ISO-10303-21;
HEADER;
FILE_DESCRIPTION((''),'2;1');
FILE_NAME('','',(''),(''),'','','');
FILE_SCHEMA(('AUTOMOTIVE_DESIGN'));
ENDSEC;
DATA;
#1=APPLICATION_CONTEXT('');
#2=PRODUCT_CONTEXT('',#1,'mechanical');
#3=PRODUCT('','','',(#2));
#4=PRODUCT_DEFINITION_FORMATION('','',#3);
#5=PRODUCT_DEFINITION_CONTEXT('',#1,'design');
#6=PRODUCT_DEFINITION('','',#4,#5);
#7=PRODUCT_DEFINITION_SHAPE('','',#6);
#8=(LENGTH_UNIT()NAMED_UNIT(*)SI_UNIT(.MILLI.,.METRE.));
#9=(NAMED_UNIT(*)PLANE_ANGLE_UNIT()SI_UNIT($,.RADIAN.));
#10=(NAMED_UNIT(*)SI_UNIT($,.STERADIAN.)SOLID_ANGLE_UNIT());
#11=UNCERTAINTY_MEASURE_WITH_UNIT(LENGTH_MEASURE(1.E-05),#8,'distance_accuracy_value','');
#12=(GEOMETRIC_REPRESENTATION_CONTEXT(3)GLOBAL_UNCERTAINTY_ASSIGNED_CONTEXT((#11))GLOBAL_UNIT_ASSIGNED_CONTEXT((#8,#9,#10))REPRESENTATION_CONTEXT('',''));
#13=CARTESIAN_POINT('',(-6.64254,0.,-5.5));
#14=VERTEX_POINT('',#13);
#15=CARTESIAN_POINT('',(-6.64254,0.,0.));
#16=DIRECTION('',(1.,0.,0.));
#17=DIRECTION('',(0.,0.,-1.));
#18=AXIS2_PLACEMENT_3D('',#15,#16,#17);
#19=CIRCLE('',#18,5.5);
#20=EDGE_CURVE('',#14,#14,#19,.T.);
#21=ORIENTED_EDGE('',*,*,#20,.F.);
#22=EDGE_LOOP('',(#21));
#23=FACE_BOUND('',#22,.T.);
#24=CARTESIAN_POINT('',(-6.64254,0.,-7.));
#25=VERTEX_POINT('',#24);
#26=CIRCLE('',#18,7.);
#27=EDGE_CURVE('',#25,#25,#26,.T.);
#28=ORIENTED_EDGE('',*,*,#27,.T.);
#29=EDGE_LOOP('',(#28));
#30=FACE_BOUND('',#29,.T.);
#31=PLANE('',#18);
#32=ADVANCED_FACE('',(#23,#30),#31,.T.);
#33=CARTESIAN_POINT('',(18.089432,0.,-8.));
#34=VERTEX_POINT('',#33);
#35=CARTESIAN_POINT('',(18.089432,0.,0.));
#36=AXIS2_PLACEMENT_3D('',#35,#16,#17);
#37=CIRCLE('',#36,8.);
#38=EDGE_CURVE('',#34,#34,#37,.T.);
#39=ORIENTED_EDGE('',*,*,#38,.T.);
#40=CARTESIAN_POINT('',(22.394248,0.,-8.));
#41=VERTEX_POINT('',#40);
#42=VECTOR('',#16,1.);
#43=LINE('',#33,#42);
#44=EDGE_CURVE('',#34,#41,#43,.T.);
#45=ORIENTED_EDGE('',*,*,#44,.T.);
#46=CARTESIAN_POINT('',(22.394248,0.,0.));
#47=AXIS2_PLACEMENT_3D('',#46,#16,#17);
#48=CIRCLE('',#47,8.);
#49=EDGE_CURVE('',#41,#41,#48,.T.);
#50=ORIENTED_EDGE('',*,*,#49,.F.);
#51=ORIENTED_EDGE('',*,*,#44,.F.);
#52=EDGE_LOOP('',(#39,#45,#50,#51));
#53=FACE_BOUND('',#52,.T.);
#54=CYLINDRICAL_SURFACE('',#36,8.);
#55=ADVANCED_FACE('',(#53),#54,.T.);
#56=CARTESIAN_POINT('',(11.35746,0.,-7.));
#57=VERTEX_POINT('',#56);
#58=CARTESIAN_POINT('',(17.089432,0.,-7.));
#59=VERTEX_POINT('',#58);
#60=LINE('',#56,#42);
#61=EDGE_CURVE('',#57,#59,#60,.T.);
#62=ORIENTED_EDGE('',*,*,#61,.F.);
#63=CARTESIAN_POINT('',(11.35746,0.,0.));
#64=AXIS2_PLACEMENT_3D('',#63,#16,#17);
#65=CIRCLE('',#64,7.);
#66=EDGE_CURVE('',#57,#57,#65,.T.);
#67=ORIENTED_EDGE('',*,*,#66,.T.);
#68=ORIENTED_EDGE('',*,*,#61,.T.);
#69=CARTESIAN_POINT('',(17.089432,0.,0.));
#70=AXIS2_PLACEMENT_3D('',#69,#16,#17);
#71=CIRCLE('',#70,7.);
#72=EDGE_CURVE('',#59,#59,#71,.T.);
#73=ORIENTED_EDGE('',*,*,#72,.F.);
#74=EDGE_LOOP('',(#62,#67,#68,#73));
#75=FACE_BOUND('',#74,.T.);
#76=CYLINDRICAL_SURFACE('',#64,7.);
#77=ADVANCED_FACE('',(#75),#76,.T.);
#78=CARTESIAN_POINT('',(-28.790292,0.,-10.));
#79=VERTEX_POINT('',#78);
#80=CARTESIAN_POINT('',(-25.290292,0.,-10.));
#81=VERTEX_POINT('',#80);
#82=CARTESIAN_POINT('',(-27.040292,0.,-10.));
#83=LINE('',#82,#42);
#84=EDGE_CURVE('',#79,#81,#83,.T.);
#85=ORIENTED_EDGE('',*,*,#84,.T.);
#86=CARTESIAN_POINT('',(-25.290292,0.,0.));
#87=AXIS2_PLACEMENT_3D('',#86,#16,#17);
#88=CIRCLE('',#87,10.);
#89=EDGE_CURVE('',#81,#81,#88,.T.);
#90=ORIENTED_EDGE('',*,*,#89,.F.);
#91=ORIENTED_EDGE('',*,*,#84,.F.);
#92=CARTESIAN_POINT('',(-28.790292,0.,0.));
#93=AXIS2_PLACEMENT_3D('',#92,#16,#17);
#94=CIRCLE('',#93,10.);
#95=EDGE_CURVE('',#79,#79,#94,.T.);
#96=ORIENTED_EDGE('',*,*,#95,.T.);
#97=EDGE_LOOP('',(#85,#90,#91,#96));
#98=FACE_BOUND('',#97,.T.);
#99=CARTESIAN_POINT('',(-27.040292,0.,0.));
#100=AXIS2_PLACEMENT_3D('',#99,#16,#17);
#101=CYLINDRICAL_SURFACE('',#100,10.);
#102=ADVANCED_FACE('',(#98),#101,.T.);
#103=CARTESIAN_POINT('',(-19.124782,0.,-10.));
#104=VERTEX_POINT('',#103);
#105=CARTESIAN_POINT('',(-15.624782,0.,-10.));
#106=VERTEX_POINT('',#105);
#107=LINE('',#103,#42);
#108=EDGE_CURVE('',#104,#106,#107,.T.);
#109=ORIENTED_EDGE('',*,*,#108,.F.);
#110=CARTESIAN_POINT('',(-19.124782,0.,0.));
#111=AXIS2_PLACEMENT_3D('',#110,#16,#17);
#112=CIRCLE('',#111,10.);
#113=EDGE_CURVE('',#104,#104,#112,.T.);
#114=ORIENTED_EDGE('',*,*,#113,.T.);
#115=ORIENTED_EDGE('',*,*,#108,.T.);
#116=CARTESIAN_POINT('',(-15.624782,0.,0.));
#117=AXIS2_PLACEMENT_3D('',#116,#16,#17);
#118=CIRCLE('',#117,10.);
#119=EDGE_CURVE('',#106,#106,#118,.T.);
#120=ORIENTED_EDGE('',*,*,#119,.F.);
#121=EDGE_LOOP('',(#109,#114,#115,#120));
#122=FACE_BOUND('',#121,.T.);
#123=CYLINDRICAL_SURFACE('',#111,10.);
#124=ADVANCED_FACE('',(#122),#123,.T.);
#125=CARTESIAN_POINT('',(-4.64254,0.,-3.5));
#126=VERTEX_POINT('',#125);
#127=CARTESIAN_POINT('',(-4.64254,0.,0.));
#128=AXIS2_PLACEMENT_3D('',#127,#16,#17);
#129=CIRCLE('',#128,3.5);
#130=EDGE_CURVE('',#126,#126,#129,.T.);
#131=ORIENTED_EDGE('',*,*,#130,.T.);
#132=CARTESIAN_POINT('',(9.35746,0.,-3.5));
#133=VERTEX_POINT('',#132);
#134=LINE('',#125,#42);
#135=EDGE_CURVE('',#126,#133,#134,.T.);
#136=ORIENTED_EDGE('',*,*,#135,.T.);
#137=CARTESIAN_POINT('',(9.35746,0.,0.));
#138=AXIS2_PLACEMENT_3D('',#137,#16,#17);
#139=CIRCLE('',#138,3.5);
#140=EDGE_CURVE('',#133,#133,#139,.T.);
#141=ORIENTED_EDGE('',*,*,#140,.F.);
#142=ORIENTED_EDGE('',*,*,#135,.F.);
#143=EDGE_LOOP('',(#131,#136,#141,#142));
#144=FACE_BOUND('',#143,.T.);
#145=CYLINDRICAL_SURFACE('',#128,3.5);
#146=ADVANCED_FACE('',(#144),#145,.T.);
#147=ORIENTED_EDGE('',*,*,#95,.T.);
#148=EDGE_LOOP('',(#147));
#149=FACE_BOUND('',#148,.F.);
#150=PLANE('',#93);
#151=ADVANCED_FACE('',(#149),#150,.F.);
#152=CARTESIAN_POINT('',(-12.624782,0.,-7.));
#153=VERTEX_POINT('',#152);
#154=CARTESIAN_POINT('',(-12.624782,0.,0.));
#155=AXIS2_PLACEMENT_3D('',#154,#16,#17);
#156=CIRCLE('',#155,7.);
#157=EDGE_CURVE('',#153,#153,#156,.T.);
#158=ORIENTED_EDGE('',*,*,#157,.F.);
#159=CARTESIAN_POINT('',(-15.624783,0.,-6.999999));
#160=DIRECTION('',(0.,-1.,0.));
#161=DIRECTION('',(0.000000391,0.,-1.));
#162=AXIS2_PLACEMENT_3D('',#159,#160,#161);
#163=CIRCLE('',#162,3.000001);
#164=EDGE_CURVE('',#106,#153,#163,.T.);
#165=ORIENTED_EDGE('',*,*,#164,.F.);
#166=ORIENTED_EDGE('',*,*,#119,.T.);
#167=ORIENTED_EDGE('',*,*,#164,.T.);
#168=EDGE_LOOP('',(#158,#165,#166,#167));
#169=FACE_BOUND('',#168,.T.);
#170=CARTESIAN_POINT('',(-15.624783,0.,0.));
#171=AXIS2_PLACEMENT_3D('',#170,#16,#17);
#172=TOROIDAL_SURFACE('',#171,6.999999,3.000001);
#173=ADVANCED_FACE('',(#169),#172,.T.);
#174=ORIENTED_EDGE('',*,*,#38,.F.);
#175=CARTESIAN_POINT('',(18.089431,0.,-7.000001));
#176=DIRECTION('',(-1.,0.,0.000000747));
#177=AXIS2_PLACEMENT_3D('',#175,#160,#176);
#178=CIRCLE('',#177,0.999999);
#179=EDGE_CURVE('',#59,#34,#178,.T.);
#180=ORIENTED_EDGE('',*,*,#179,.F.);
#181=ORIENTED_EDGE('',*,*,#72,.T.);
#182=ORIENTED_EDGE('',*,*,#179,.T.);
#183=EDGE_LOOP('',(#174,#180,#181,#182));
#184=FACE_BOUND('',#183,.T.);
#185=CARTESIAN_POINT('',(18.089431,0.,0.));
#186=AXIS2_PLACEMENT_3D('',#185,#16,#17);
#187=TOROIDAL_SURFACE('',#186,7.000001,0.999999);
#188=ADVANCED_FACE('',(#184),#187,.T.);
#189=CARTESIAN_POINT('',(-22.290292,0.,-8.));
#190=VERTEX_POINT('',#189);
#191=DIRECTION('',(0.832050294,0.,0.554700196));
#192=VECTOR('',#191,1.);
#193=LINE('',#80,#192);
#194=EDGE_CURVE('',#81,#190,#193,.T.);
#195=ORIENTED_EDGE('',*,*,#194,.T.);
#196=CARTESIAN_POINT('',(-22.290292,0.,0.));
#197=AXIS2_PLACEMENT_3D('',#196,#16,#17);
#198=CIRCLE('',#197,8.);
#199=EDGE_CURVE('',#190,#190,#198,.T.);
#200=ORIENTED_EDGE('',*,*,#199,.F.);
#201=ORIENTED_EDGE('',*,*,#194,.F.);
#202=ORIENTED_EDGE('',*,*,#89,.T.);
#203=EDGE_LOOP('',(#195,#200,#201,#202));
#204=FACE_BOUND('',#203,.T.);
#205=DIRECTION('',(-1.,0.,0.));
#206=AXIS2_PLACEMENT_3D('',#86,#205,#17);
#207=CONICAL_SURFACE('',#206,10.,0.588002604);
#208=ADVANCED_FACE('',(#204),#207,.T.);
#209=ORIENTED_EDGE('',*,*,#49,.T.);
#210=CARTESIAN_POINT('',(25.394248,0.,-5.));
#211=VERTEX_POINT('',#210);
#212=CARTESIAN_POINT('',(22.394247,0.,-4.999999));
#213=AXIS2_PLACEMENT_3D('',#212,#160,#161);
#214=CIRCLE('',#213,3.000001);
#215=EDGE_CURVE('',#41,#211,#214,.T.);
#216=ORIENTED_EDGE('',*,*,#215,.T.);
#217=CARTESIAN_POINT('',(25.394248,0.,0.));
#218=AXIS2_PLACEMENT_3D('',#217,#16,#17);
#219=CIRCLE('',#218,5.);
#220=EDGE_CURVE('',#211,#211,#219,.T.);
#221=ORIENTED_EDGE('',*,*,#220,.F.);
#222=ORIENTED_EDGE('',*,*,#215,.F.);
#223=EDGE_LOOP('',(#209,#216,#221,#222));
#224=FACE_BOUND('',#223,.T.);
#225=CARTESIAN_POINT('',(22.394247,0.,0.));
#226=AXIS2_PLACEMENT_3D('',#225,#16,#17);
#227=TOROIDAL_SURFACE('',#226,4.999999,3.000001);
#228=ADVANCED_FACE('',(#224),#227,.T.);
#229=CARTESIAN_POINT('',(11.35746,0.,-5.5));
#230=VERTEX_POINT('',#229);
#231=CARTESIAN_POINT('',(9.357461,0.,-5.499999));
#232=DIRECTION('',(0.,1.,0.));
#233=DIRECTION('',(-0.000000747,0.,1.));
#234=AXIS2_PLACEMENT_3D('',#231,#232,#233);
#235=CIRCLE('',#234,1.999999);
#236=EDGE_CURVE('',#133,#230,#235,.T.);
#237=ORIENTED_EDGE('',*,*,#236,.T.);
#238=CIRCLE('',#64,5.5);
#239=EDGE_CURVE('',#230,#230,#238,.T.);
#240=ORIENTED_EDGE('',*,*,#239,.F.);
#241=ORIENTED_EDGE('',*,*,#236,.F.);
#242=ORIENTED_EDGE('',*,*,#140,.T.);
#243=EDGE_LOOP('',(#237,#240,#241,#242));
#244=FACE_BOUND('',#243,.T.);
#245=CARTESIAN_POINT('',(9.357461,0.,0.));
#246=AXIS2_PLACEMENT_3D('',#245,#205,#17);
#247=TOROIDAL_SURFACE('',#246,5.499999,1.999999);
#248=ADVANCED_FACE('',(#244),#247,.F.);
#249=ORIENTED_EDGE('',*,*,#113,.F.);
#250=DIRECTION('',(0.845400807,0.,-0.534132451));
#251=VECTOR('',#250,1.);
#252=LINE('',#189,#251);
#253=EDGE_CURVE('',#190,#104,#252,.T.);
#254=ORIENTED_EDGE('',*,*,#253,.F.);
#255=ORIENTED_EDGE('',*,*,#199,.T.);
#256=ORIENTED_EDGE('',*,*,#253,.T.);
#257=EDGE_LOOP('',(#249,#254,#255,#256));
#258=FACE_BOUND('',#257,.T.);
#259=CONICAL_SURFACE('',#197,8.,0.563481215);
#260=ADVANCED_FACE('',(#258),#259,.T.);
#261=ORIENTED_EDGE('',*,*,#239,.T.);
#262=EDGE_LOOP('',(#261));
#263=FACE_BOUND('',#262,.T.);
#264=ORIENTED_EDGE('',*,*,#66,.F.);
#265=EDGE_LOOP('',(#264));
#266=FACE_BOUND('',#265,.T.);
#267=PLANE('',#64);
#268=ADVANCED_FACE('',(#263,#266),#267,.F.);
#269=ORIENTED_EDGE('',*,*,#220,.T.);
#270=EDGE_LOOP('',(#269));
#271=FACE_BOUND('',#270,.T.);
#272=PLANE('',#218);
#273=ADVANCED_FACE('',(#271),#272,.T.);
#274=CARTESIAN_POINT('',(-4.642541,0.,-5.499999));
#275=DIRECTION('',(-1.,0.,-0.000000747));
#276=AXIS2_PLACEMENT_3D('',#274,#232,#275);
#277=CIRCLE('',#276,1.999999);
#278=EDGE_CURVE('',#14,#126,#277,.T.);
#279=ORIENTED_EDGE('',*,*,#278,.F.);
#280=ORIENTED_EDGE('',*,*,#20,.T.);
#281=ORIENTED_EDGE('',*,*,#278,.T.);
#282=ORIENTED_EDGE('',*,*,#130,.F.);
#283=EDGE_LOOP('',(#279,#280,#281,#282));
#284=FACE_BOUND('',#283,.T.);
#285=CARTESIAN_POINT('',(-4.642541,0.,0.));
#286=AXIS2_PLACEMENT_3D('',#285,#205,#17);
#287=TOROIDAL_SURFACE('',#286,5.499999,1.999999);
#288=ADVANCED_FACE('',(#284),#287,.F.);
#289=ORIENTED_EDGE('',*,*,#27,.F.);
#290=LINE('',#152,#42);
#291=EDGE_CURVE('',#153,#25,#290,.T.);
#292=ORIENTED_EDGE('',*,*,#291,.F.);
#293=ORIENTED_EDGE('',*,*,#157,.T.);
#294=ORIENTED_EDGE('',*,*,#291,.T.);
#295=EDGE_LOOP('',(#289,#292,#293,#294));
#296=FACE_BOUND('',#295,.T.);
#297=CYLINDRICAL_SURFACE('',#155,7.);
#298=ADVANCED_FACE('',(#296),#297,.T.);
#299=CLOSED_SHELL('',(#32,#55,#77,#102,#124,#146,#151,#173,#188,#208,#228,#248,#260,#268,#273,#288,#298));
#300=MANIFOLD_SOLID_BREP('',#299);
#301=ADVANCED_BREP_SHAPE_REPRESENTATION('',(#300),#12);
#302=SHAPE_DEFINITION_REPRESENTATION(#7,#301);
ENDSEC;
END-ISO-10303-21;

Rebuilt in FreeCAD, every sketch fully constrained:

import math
import FreeCAD as App
import Part
import Sketcher
from FreeCAD import Vector
Q = App.Units.Quantity

doc = App.newDocument("Part")
params = doc.addObject("Spreadsheet::Sheet", "Params")
for row, (alias, value) in enumerate([
    ("sketch1_radius", "3.000001 mm"),
    ("sketch1_radius2", "1.999999 mm"),
    ("sketch1_radius3", "0.999999 mm"),
    ("sketch1_width", "14 mm"),
    ("sketch1_height", "10 mm"),
    ("revolution_angle", "360 deg"),
], start=1):
    params.set(f"A{row}", alias)
    params.set(f"B{row}", "=" + value)
    params.setAlias(f"B{row}", alias)

body = doc.addObject("PartDesign::Body", "Body")

sketch1 = body.newObject("Sketcher::SketchObject", "Sketch")
sketch1.AttachmentSupport = (doc.getObject("XZ_Plane"), [""])
sketch1.MapMode = "FlatFace"
sketch1.addGeometry(Part.LineSegment(Vector(-28.8, 0, 0), Vector(-28.8, -10, 0)), False)
sketch1.addGeometry(Part.LineSegment(Vector(-28.8, -10, 0), Vector(-25.3, -10, 0)), False)
sketch1.addGeometry(Part.LineSegment(Vector(-25.3, -10, 0), Vector(-22.3, -8, 0)), False)
sketch1.addGeometry(Part.LineSegment(Vector(-22.3, -8, 0), Vector(-19.1, -10, 0)), False)
sketch1.addGeometry(Part.LineSegment(Vector(-19.1, -10, 0), Vector(-15.6, -10, 0)), False)
sketch1.addGeometry(Part.ArcOfCircle(Part.Circle(Vector(-15.6, -7, 0), Vector(0, 0, 1), 3), math.radians(-90), math.radians(0)), False)
sketch1.addGeometry(Part.LineSegment(Vector(-12.6, -7, 0), Vector(-6.6, -7, 0)), False)
sketch1.addGeometry(Part.LineSegment(Vector(-6.6, -7, 0), Vector(-6.6, -5.5, 0)), False)
sketch1.addGeometry(Part.ArcOfCircle(Part.Circle(Vector(-4.6, -5.5, 0), Vector(0, 0, 1), 2), math.radians(90), math.radians(180)), False)
sketch1.addGeometry(Part.LineSegment(Vector(-4.6, -3.5, 0), Vector(9.4, -3.5, 0)), False)
sketch1.addGeometry(Part.ArcOfCircle(Part.Circle(Vector(9.4, -5.5, 0), Vector(0, 0, 1), 2), math.radians(0), math.radians(90)), False)
sketch1.addGeometry(Part.LineSegment(Vector(11.4, -5.5, 0), Vector(11.4, -7, 0)), False)
sketch1.addGeometry(Part.LineSegment(Vector(11.4, -7, 0), Vector(17.1, -7, 0)), False)
sketch1.addGeometry(Part.ArcOfCircle(Part.Circle(Vector(18.1, -7, 0), Vector(0, 0, 1), 1), math.radians(180), math.radians(270)), False)
sketch1.addGeometry(Part.LineSegment(Vector(18.1, -8, 0), Vector(22.4, -8, 0)), False)
sketch1.addGeometry(Part.ArcOfCircle(Part.Circle(Vector(22.4, -5, 0), Vector(0, 0, 1), 3), math.radians(-90), math.radians(0)), False)
sketch1.addGeometry(Part.LineSegment(Vector(25.4, -5, 0), Vector(25.4, 0, 0)), False)
sketch1.addGeometry(Part.LineSegment(Vector(25.4, 0, 0), Vector(-28.8, 0, 0)), False)
sketch1.addConstraint(Sketcher.Constraint("Coincident", 0, 2, 1, 1))
sketch1.addConstraint(Sketcher.Constraint("Coincident", 1, 2, 2, 1))
sketch1.addConstraint(Sketcher.Constraint("Coincident", 2, 2, 3, 1))
sketch1.addConstraint(Sketcher.Constraint("Coincident", 3, 2, 4, 1))
sketch1.addConstraint(Sketcher.Constraint("Tangent", 4, 2, 5, 1))
sketch1.addConstraint(Sketcher.Constraint("Coincident", 5, 2, 6, 1))
sketch1.addConstraint(Sketcher.Constraint("Coincident", 6, 2, 7, 1))
sketch1.addConstraint(Sketcher.Constraint("Tangent", 7, 2, 8, 2))
sketch1.addConstraint(Sketcher.Constraint("Tangent", 8, 1, 9, 1))
sketch1.addConstraint(Sketcher.Constraint("Tangent", 9, 2, 10, 2))
sketch1.addConstraint(Sketcher.Constraint("Tangent", 10, 1, 11, 1))
sketch1.addConstraint(Sketcher.Constraint("Coincident", 11, 2, 12, 1))
sketch1.addConstraint(Sketcher.Constraint("Coincident", 12, 2, 13, 1))
sketch1.addConstraint(Sketcher.Constraint("Tangent", 13, 2, 14, 1))
sketch1.addConstraint(Sketcher.Constraint("Tangent", 14, 2, 15, 1))
sketch1.addConstraint(Sketcher.Constraint("Tangent", 15, 2, 16, 1))
sketch1.addConstraint(Sketcher.Constraint("Coincident", 16, 2, 17, 1))
sketch1.addConstraint(Sketcher.Constraint("Coincident", 17, 2, 0, 1))
sketch1.addConstraint(Sketcher.Constraint("Vertical", 0))
sketch1.addConstraint(Sketcher.Constraint("Horizontal", 1))
sketch1.addConstraint(Sketcher.Constraint("Horizontal", 4))
sketch1.addConstraint(Sketcher.Constraint("Horizontal", 6))
sketch1.addConstraint(Sketcher.Constraint("Vertical", 7))
sketch1.addConstraint(Sketcher.Constraint("Horizontal", 9))
sketch1.addConstraint(Sketcher.Constraint("Vertical", 11))
sketch1.addConstraint(Sketcher.Constraint("Horizontal", 12))
sketch1.addConstraint(Sketcher.Constraint("Horizontal", 14))
sketch1.addConstraint(Sketcher.Constraint("Vertical", 16))
sketch1.addConstraint(Sketcher.Constraint("Horizontal", 17))
sketch1.addConstraint(Sketcher.Constraint("Equal", 8, 10))
sketch1.addConstraint(Sketcher.Constraint("Equal", 5, 15))
sketch1.addConstraint(Sketcher.Constraint("PointOnObject", 16, 2, -1))
sketch1.addConstraint(Sketcher.Constraint("Horizontal", 5, 3, 13, 3))
sketch1.addConstraint(Sketcher.Constraint("Horizontal", 1, 2, 3, 2))
sketch1.addConstraint(Sketcher.Constraint("Horizontal", 13, 3, 5, 2))
sketch1.addConstraint(Sketcher.Constraint("Horizontal", 6, 2, 11, 2))
sketch1.addConstraint(Sketcher.Constraint("Horizontal", 2, 2, 13, 2))
sketch1.addConstraint(Sketcher.Constraint("Equal", 1, 4))
sketch1.addConstraint(Sketcher.Constraint("Radius", 5, Q("3.000001 mm")))
sketch1.addConstraint(Sketcher.Constraint("Radius", 8, Q("1.999999 mm")))
sketch1.addConstraint(Sketcher.Constraint("Radius", 13, Q("0.999999 mm")))
sketch1.addConstraint(Sketcher.Constraint("DistanceX", 9, 1, 9, 2, Q("14 mm")))
sketch1.addConstraint(Sketcher.Constraint("DistanceY", 0, 2, 0, 1, Q("10 mm")))
sketch1.addConstraint(Sketcher.Constraint("DistanceX", 1, 1, 1, 2, Q("3.5 mm")))
sketch1.addConstraint(Sketcher.Constraint("DistanceY", 7, 1, 7, 2, Q("1.5 mm")))
sketch1.addConstraint(Sketcher.Constraint("DistanceX", 1, 2, 2, 2, Q("3 mm")))
sketch1.addConstraint(Sketcher.Constraint("DistanceX", 6, 1, 6, 2, Q("5.982242 mm")))
sketch1.addConstraint(Sketcher.Constraint("DistanceX", 12, 1, 12, 2, Q("5.731972 mm")))
sketch1.addConstraint(Sketcher.Constraint("DistanceX", 17, 2, 17, 1, Q("54.18454 mm")))
sketch1.addConstraint(Sketcher.Constraint("Distance", 3, Q("3.74439 mm")))
sketch1.addConstraint(Sketcher.Constraint("DistanceX", 8, 3, -1, 1, Q("4.642541 mm")))
sketch1.setExpression("Constraints[38]", "Params.sketch1_radius")
sketch1.setExpression("Constraints[39]", "Params.sketch1_radius2")
sketch1.setExpression("Constraints[40]", "Params.sketch1_radius3")
sketch1.setExpression("Constraints[41]", "Params.sketch1_width")
sketch1.setExpression("Constraints[42]", "Params.sketch1_height")
revolution = body.newObject("PartDesign::Revolution", "Revolution")
revolution.Profile = sketch1
revolution.ReferenceAxis = (sketch1, ["H_Axis"])
revolution.setExpression("Angle", "Params.revolution_angle")

doc.recompute()
